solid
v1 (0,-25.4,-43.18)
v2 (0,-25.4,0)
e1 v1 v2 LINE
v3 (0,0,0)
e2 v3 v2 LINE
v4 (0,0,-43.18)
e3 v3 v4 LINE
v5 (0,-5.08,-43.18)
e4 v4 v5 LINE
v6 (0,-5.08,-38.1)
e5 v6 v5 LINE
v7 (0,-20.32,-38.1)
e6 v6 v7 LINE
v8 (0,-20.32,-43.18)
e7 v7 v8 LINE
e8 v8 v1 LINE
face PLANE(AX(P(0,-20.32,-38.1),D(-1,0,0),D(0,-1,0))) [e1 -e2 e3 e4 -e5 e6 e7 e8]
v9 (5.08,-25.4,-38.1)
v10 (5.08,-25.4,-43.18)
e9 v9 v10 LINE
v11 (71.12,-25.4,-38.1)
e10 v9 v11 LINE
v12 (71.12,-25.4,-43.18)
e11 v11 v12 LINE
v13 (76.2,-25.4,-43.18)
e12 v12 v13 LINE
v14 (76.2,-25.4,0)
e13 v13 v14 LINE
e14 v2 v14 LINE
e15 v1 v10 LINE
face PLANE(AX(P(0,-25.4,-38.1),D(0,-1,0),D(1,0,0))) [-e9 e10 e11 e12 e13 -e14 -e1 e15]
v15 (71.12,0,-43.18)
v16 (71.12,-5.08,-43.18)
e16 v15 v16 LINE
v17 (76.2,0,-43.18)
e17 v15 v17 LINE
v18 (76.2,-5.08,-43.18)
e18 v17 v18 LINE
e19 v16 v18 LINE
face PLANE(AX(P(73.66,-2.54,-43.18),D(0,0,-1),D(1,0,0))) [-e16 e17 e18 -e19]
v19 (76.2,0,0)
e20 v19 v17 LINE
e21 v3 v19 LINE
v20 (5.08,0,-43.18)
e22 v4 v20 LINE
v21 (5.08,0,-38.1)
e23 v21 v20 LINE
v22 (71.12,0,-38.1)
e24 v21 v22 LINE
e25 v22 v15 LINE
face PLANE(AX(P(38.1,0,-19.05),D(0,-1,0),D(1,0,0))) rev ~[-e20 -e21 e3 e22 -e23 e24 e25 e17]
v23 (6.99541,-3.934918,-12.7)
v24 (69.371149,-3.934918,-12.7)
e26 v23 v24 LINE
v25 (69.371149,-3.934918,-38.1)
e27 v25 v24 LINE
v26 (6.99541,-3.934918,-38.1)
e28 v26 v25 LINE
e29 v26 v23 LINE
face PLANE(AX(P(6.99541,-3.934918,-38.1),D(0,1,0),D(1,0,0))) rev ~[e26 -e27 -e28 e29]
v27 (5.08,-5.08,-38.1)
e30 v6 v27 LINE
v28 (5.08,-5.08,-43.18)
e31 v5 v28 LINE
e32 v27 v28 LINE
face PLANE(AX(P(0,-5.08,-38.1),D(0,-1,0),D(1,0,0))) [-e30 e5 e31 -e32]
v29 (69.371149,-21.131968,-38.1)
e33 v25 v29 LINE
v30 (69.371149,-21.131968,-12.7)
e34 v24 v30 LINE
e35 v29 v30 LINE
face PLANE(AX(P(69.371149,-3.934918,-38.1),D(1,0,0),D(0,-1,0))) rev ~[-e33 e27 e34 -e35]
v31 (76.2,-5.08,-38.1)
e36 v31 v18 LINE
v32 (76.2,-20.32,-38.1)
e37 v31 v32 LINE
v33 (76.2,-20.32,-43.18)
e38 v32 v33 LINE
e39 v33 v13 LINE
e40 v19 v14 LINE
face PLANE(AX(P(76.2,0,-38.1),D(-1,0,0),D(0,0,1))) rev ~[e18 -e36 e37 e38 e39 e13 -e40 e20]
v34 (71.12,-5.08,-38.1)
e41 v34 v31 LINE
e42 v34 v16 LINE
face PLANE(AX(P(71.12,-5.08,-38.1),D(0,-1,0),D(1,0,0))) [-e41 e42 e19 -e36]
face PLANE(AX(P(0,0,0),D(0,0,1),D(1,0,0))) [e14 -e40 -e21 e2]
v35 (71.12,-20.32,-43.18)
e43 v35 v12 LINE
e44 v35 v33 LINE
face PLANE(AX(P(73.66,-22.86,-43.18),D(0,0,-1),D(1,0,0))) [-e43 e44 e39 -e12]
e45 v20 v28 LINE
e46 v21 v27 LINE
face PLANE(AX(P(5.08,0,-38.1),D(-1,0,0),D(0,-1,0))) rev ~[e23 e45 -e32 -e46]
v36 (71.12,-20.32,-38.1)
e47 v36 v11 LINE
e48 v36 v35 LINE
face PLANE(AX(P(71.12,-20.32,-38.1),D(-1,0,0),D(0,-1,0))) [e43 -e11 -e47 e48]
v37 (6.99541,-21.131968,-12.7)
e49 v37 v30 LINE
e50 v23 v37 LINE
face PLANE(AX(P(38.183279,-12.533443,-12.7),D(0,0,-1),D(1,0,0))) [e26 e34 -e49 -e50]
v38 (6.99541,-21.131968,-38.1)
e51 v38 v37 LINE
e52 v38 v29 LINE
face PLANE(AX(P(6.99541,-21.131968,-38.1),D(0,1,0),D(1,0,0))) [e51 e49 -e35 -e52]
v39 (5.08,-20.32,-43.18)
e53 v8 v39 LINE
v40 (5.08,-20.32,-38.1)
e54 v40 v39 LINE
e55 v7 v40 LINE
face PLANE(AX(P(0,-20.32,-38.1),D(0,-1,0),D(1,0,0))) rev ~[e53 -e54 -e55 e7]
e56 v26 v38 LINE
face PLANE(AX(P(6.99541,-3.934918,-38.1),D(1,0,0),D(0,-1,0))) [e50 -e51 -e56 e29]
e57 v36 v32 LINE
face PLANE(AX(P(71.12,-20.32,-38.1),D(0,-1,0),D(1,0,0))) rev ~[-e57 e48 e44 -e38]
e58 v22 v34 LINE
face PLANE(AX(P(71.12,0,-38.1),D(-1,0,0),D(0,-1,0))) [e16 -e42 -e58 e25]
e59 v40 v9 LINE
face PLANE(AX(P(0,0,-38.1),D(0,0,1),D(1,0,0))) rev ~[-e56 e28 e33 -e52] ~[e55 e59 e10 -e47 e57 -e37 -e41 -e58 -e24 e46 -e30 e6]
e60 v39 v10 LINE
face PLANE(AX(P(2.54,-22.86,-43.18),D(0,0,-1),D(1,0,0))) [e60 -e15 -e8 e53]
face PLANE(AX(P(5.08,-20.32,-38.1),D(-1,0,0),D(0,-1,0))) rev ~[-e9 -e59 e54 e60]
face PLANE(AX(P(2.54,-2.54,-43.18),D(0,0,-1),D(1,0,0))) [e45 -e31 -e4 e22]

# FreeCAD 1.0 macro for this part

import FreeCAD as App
import Part
import Sketcher

V = App.Vector
Q = App.Units.Quantity


def add_polygon(sketch, points):
    """Adds a closed chain of lines whose ends are joined by coincident constraints."""
    first, n = sketch.GeometryCount, len(points)
    for a, b in zip(points, points[1:] + points[:1]):
        sketch.addGeometry(Part.LineSegment(App.Vector(*a, 0), App.Vector(*b, 0)), False)
    for i in range(n):
        sketch.addConstraint(Sketcher.Constraint("Coincident", first + i, 2, first + (i + 1) % n, 1))

doc = App.newDocument("Part")
params = doc.addObject("Spreadsheet::Sheet", "Params")
for row, (alias, value) in enumerate([
    ("sketch1_width", "3 in"),
    ("sketch1_height", "1.5 in"),
    ("pad1_length", "1 in"),
    ("sketch2_width", "0.2 in"),
    ("pad2_length", "0.2 in"),
    ("pocket1_length", "1 in"),
], start=1):
    params.set(f"A{row}", alias)
    params.set(f"B{row}", "=" + value)
    params.setAlias(f"B{row}", alias)

body = doc.addObject("PartDesign::Body", "Body")

# Sketch on XZ plane
sketch1 = body.newObject("Sketcher::SketchObject", "Sketch")
sketch1.AttachmentSupport = (doc.getObject("XZ_Plane"), [""])
sketch1.MapMode = "FlatFace"
add_polygon(sketch1, [(0, 0), (0, -38), (76, -38), (76, 0)])  # lines 0-3
sketch1.addConstraint([
    Sketcher.Constraint("Vertical", 0),
    Sketcher.Constraint("Horizontal", 1),
    Sketcher.Constraint("Vertical", 2),
    Sketcher.Constraint("Horizontal", 3),
    Sketcher.Constraint("Coincident", 3, 2, -1, 1),
    Sketcher.Constraint("DistanceX", 1, 1, 1, 2, Q("3 in")),
    Sketcher.Constraint("DistanceY", 0, 2, 0, 1, Q("1.5 in")),
])
sketch1.setExpression("Constraints[9]", "Params.sketch1_width")
sketch1.setExpression("Constraints[10]", "Params.sketch1_height")
pad1 = body.newObject("PartDesign::Pad", "Pad")
pad1.Profile = sketch1
pad1.setExpression("Length", "Params.pad1_length")

# Sketch on XY plane
sketch2 = body.newObject("Sketcher::SketchObject", "Sketch001")
sketch2.AttachmentSupport = (doc.getObject("XY_Plane"), [""])
sketch2.MapMode = "FlatFace"
sketch2.AttachmentOffset = App.Placement(V(0, 0, -1.5 * 25.4), App.Rotation())
add_polygon(sketch2, [(0, -25), (0, -20), (5, -20), (5, -25)])  # lines 0-3
add_polygon(sketch2, [(0, -5), (0, 0), (5, 0), (5, -5)])  # lines 4-7
add_polygon(sketch2, [(71, -25), (71, -20), (76, -20), (76, -25)])  # lines 8-11
add_polygon(sketch2, [(71, -5), (71, 0), (76, 0), (76, -5)])  # lines 12-15
sketch2.addConstraint([
    Sketcher.Constraint("Vertical", 0),
    Sketcher.Constraint("Horizontal", 1),
    Sketcher.Constraint("Vertical", 2),
    Sketcher.Constraint("Horizontal", 3),
    Sketcher.Constraint("Vertical", 4),
    Sketcher.Constraint("Horizontal", 5),
    Sketcher.Constraint("Vertical", 6),
    Sketcher.Constraint("Horizontal", 7),
    Sketcher.Constraint("Vertical", 8),
    Sketcher.Constraint("Horizontal", 9),
    Sketcher.Constraint("Vertical", 10),
    Sketcher.Constraint("Horizontal", 11),
    Sketcher.Constraint("Vertical", 12),
    Sketcher.Constraint("Horizontal", 13),
    Sketcher.Constraint("Vertical", 14),
    Sketcher.Constraint("Horizontal", 15),
    Sketcher.Constraint("Coincident", 4, 2, -1, 1),
    Sketcher.Constraint("PointOnObject", 0, 2, -2),
    Sketcher.Constraint("PointOnObject", 12, 2, -1),
    Sketcher.Constraint("Horizontal", 1, 2, 8, 2),
    Sketcher.Constraint("Horizontal", 3, 2, 10, 2),
    Sketcher.Constraint("Horizontal", 7, 2, 14, 2),
    Sketcher.Constraint("Vertical", 2, 2, 5, 2),
    Sketcher.Constraint("Vertical", 11, 2, 12, 2),
    Sketcher.Constraint("Vertical", 10, 2, 13, 2),
    Sketcher.Constraint("Equal", 7, 9),
    Sketcher.Constraint("Equal", 15, 0),
    Sketcher.Constraint("Equal", 2, 4),
    Sketcher.Constraint("DistanceX", 1, 1, 1, 2, Q("0.2 in")),
    Sketcher.Constraint("DistanceY", 2, 2, -1, 1, Q("1 in")),
    Sketcher.Constraint("DistanceX", -1, 1, 9, 2, Q("3 in")),
])
sketch2.setExpression("Constraints[44]", "Params.sketch2_width")
pad2 = body.newObject("PartDesign::Pad", "Pad001")
pad2.Profile = sketch2
pad2.setExpression("Length", "Params.pad2_length")
pad2.Reversed = True

# Sketch on XY plane
sketch3 = body.newObject("Sketcher::SketchObject", "Sketch002")
sketch3.AttachmentSupport = (doc.getObject("XY_Plane"), [""])
sketch3.MapMode = "FlatFace"
sketch3.AttachmentOffset = App.Placement(V(0, 0, -1.5 * 25.4), App.Rotation())
add_polygon(sketch3, [(7, -21), (7, -4), (69, -4), (69, -21)])  # lines 0-3
sketch3.addConstraint([
    Sketcher.Constraint("Vertical", 0),
    Sketcher.Constraint("Horizontal", 1),
    Sketcher.Constraint("Vertical", 2),
    Sketcher.Constraint("Horizontal", 3),
    Sketcher.Constraint("DistanceX", 1, 1, 1, 2, 62.375739),
    Sketcher.Constraint("DistanceY", 0, 1, 0, 2, 17.19705),
    Sketcher.Constraint("DistanceX", -1, 1, 0, 2, 6.99541),
    Sketcher.Constraint("DistanceY", 0, 2, -1, 1, 3.934918),
])
pocket1 = body.newObject("PartDesign::Pocket", "Pocket")
pocket1.Profile = sketch3
pocket1.setExpression("Length", "Params.pocket1_length")
pocket1.Reversed = True

doc.recompute()
